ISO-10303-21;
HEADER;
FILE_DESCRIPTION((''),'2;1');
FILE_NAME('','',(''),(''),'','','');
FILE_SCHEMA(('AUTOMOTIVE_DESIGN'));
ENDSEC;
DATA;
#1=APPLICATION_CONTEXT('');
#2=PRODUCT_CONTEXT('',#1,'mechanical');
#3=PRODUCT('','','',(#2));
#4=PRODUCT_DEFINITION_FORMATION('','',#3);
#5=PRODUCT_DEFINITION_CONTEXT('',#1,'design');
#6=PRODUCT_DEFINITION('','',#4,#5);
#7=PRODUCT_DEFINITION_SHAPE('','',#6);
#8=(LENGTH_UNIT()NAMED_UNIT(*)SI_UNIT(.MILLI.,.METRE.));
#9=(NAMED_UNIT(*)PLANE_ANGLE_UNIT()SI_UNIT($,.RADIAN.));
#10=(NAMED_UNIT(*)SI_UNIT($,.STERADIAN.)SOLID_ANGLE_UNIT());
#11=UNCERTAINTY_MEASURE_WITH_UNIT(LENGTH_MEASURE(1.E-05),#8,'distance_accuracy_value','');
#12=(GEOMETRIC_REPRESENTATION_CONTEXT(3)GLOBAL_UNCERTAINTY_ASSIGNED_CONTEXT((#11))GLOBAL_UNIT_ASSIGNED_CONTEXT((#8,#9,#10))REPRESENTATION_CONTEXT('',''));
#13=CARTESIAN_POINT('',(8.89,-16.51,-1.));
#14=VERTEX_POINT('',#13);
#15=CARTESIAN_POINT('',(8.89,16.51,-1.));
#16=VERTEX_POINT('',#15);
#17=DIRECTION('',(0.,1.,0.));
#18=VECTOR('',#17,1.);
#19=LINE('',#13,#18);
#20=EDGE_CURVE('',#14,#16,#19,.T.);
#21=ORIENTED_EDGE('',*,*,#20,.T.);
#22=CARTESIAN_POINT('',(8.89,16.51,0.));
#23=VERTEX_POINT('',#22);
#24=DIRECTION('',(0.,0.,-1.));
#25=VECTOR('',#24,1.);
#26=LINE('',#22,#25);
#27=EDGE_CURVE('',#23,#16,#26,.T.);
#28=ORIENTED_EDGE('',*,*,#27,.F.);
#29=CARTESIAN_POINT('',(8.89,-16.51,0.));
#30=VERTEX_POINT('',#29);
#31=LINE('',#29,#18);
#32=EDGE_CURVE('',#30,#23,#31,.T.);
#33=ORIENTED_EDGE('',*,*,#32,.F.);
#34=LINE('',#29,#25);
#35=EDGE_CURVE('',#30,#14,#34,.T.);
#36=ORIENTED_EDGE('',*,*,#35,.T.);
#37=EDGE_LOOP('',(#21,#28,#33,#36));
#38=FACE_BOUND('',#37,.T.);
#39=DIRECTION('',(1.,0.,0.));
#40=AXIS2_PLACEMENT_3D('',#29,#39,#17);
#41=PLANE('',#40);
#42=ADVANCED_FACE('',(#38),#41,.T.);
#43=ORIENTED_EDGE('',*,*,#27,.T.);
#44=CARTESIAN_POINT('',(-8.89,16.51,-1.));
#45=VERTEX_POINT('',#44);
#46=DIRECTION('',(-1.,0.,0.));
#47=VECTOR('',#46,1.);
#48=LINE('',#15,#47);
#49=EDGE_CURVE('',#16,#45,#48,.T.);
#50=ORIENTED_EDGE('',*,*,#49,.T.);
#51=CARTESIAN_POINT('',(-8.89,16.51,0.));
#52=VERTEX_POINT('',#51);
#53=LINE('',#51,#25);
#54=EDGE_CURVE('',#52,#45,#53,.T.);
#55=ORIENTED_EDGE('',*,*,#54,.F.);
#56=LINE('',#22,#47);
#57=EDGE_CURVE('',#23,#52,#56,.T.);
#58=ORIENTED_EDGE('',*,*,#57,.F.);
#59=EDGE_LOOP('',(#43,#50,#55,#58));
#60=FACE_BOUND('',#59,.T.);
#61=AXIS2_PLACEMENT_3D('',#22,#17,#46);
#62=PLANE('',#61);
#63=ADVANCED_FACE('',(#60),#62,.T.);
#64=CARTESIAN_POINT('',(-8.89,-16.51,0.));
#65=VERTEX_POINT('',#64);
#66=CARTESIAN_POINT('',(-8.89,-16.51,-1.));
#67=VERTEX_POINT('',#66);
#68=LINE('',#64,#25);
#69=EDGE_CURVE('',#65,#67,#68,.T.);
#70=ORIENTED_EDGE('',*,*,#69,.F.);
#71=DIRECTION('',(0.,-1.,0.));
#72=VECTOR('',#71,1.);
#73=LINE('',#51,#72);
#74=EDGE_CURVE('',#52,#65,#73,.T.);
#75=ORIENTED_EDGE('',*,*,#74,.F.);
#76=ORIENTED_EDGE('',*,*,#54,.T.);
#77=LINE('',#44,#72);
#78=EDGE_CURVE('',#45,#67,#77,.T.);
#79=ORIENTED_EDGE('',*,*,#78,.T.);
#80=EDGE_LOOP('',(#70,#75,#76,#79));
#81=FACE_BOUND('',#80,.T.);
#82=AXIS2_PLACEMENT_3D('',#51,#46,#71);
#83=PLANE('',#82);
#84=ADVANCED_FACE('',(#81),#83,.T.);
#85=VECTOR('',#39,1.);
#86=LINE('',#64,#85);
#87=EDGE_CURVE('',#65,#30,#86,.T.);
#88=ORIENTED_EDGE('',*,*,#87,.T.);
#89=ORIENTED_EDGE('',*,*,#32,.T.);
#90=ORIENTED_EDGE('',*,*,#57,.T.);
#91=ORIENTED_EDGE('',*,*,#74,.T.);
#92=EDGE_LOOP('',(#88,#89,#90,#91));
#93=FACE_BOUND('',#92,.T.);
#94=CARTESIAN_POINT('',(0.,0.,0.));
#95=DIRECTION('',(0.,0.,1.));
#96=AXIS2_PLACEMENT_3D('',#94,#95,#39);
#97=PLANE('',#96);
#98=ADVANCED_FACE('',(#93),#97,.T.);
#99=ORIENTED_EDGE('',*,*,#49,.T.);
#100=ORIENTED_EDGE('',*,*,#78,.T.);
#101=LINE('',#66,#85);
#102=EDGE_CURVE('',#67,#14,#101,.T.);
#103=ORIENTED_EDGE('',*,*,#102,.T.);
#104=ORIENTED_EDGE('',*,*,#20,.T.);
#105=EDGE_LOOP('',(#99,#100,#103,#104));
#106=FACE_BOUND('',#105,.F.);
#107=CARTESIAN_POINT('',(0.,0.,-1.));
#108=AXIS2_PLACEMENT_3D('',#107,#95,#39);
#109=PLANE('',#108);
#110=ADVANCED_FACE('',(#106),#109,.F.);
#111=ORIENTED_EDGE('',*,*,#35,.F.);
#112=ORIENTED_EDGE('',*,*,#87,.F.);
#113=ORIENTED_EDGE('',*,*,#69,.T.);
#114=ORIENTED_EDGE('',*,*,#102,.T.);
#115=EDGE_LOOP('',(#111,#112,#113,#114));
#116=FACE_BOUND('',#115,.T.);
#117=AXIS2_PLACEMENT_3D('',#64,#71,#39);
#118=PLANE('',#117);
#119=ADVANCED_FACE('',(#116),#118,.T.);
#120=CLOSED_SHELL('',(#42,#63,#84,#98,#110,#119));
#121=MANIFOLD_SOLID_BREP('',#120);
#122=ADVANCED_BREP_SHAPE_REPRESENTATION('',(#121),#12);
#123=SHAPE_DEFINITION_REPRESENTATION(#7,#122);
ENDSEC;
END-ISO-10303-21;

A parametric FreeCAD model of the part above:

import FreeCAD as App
import Part
import Sketcher

V = App.Vector
Q = App.Units.Quantity

doc = App.newDocument("Part")
params = doc.addObject("Spreadsheet::Sheet", "Params")
for row, (alias, value) in enumerate([
    ("sketch1_width", "0.7 in"),
    ("sketch1_height", "1.3 in"),
    ("pad1_length", "1 mm"),
], start=1):
    params.set(f"A{row}", alias)
    params.set(f"B{row}", "=" + value)
    params.setAlias(f"B{row}", alias)

body = doc.addObject("PartDesign::Body", "Body")

# Sketch on XY plane
sketch1 = body.newObject("Sketcher::SketchObject", "Sketch")
sketch1.AttachmentSupport = (doc.getObject("XY_Plane"), [""])
sketch1.MapMode = "FlatFace"
sketch1.addGeometry([
    Part.LineSegment(V(-9, 17, 0), V(-9, -17, 0)),
    Part.LineSegment(V(-9, -17, 0), V(9, -17, 0)),
    Part.LineSegment(V(9, -17, 0), V(9, 17, 0)),
    Part.LineSegment(V(9, 17, 0), V(-9, 17, 0)),
], False)
sketch1.addConstraint([
    Sketcher.Constraint("Coincident", 0, 2, 1, 1),
    Sketcher.Constraint("Coincident", 1, 2, 2, 1),
    Sketcher.Constraint("Coincident", 2, 2, 3, 1),
    Sketcher.Constraint("Coincident", 3, 2, 0, 1),
    Sketcher.Constraint("Vertical", 0),
    Sketcher.Constraint("Horizontal", 1),
    Sketcher.Constraint("Vertical", 2),
    Sketcher.Constraint("Horizontal", 3),
    Sketcher.Constraint("Symmetric", 0, 2, 2, 2, -1, 1),
    Sketcher.Constraint("DistanceX", 1, 1, 1, 2, Q("0.7 in")),
    Sketcher.Constraint("DistanceY", 0, 2, 0, 1, Q("1.3 in")),
])
sketch1.setExpression("Constraints[9]", "Params.sketch1_width")
sketch1.setExpression("Constraints[10]", "Params.sketch1_height")
pad1 = body.newObject("PartDesign::Pad", "Pad")
pad1.Profile = sketch1
pad1.setExpression("Length", "Params.pad1_length")
pad1.Reversed = True

doc.recompute()
